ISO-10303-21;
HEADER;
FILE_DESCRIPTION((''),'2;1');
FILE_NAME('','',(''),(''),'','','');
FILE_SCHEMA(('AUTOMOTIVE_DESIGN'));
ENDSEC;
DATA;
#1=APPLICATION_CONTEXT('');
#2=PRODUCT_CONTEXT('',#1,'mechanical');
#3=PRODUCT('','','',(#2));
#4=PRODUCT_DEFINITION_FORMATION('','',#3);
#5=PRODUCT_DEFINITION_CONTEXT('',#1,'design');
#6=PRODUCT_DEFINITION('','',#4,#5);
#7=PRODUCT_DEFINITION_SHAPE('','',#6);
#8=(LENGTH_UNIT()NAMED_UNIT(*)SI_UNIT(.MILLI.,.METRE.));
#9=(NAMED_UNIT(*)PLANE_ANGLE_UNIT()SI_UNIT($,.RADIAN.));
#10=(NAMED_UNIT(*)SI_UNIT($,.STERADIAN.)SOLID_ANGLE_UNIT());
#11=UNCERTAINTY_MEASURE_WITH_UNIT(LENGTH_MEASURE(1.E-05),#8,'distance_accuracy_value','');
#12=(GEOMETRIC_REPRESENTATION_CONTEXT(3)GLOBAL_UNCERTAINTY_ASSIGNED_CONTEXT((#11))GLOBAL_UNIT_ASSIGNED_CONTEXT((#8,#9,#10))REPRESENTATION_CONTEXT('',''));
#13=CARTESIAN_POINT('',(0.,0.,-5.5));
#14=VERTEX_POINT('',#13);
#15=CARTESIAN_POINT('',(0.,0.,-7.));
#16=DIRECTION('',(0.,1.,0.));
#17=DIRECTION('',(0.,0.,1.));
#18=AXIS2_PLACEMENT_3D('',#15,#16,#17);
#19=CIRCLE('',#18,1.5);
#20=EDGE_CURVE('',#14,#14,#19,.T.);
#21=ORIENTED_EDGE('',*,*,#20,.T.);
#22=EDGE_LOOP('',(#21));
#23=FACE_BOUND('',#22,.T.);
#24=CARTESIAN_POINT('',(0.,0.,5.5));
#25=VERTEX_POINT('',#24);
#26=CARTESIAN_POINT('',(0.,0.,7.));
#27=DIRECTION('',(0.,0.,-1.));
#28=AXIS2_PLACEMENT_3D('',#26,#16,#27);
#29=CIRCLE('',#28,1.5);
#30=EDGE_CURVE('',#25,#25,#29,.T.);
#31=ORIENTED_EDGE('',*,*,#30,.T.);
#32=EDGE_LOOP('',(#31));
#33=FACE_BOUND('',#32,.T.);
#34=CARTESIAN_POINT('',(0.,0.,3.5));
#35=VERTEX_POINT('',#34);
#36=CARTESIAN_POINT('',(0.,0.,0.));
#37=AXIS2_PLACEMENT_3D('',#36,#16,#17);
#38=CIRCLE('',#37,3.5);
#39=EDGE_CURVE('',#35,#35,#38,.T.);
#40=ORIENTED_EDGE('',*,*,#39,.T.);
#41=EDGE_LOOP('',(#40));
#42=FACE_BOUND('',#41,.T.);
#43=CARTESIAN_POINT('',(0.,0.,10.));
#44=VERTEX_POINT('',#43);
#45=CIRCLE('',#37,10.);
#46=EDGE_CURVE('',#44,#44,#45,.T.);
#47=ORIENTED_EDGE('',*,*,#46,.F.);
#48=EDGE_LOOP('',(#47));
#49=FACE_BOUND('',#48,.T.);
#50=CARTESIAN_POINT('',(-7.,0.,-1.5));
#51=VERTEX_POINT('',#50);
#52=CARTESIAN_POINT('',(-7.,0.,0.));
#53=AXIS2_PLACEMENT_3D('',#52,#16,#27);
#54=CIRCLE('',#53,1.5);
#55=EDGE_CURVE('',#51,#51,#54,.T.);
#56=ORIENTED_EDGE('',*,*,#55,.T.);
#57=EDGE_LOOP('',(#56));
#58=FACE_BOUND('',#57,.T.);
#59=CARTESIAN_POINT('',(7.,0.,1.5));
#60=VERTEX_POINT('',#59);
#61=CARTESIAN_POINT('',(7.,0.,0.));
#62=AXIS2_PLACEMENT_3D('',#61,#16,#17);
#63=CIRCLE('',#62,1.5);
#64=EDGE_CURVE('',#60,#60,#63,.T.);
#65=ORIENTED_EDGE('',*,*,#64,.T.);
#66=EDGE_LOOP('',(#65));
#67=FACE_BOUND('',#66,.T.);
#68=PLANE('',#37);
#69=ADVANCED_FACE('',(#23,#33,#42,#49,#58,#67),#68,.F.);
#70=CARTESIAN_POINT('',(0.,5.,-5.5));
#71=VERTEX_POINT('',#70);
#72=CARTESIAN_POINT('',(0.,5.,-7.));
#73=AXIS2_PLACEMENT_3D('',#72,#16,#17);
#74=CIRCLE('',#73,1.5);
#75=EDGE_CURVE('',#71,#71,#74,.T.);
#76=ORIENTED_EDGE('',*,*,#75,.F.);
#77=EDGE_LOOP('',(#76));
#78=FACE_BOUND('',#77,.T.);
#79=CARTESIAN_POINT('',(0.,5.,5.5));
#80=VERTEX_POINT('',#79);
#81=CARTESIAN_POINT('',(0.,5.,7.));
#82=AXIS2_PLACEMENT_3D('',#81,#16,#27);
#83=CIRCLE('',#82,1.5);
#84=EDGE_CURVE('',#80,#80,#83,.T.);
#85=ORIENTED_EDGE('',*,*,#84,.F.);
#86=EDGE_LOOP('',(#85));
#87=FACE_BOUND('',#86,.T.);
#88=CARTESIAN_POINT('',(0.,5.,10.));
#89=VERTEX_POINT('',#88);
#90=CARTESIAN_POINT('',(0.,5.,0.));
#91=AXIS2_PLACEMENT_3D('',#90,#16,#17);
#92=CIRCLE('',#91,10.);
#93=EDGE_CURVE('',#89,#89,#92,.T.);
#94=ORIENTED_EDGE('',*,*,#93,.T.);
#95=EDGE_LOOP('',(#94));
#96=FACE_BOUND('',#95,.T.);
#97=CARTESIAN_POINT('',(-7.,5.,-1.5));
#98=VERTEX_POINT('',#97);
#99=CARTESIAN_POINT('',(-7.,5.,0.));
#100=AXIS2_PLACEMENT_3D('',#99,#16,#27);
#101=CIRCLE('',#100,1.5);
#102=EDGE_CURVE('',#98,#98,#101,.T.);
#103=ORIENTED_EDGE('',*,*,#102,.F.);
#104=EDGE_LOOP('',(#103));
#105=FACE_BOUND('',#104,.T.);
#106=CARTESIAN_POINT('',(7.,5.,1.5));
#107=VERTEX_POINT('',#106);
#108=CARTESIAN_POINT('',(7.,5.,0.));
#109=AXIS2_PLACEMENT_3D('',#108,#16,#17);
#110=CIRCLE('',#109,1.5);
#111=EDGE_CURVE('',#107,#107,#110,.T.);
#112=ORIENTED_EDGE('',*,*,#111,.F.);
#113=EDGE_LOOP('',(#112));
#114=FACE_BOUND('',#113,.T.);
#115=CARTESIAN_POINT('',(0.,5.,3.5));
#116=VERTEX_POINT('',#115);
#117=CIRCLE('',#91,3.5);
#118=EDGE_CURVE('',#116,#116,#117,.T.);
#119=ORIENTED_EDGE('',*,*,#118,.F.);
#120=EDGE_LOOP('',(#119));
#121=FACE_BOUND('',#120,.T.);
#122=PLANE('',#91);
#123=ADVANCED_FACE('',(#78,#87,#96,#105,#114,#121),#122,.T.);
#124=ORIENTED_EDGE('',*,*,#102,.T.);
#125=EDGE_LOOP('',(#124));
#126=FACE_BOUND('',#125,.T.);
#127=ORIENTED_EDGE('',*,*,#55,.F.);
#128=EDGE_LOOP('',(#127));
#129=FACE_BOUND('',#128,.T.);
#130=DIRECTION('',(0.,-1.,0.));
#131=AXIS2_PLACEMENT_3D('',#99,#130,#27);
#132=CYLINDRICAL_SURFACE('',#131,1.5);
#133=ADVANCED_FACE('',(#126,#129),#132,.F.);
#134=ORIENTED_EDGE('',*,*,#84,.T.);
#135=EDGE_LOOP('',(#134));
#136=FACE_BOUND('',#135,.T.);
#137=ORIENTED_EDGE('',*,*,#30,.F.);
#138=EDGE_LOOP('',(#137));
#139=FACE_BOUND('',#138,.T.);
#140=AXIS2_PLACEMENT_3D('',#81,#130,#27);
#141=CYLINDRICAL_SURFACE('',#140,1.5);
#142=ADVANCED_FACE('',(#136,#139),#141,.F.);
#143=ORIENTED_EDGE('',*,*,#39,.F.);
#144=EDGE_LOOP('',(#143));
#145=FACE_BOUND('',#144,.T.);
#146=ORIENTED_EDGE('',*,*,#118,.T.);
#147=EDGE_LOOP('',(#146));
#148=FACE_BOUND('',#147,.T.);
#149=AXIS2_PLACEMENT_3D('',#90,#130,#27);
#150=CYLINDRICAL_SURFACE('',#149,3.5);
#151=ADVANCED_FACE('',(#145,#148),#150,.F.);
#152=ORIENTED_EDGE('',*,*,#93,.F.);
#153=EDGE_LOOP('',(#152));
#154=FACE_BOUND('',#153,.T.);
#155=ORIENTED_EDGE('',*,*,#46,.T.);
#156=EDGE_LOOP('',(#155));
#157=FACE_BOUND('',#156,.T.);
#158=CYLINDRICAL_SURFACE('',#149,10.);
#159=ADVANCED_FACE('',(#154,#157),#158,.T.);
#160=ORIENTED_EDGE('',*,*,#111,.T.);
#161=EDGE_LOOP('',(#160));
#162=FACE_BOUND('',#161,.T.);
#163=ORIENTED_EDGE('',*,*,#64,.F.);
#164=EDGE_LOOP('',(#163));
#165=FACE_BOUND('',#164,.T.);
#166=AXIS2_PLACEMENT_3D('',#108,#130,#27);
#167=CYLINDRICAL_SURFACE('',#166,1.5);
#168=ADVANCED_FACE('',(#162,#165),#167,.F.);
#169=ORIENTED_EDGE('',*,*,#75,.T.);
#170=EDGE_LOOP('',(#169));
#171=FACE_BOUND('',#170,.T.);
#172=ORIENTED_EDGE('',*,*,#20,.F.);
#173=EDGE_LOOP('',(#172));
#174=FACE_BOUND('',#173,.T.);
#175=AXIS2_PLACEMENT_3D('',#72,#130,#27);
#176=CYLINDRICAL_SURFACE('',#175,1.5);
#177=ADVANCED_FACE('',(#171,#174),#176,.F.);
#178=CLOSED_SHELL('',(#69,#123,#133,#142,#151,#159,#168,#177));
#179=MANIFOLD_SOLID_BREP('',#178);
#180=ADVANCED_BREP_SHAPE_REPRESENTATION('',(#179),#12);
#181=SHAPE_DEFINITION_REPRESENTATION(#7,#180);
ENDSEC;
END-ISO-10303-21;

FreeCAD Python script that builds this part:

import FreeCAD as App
import Part
import Sketcher

V = App.Vector

doc = App.newDocument("Part")
body = doc.addObject("PartDesign::Body", "Body")

sketch1 = doc.addObject("Sketcher::SketchObject", "Sketch")
body.addObject(sketch1)
sketch1.AttachmentSupport = (doc.XZ_Plane, [""])
sketch1.MapMode = "FlatFace"
sketch1.addGeometry(Part.Circle(V(0, 0, 0), V(0, 0, 1), 10), False)
sketch1.addGeometry(Part.Circle(V(0, -7, 0), V(0, 0, 1), 1.5), False)
sketch1.addGeometry(Part.Circle(V(-7, 0, 0), V(0, 0, 1), 1.5), False)
sketch1.addGeometry(Part.Circle(V(7, 0, 0), V(0, 0, 1), 1.5), False)
sketch1.addGeometry(Part.Circle(V(0, 0, 0), V(0, 0, 1), 3.5), False)
sketch1.addGeometry(Part.Circle(V(0, 7, 0), V(0, 0, 1), 1.5), False)
sketch1.addConstraint(Sketcher.Constraint("Coincident", 0, 3, -1, 1))
sketch1.addConstraint(Sketcher.Constraint("Coincident", 4, 3, -1, 1))
sketch1.addConstraint(Sketcher.Constraint("Equal", 1, 2))
sketch1.addConstraint(Sketcher.Constraint("Equal", 2, 3))
sketch1.addConstraint(Sketcher.Constraint("Equal", 3, 5))
sketch1.addConstraint(Sketcher.Constraint("Symmetric", 2, 3, 3, 3, -1, 1))
sketch1.addConstraint(Sketcher.Constraint("Symmetric", 1, 3, 5, 3, -1, 1))
sketch1.addConstraint(Sketcher.Constraint("PointOnObject", 1, 3, -2))
sketch1.addConstraint(Sketcher.Constraint("PointOnObject", 2, 3, -1))
sketch1.addConstraint(Sketcher.Constraint("Diameter", 0, 20.0))
sketch1.addConstraint(Sketcher.Constraint("Diameter", 1, 3.0))
sketch1.addConstraint(Sketcher.Constraint("Diameter", 4, 7.0))
sketch1.addConstraint(Sketcher.Constraint("DistanceY", 1, 3, -1, 1, 7.0))
sketch1.addConstraint(Sketcher.Constraint("DistanceX", 2, 3, -1, 1, 7.0))
pad1 = doc.addObject("PartDesign::Pad", "Pad")
body.addObject(pad1)
pad1.Profile = sketch1
pad1.Length = 5
pad1.Reversed = True

doc.recompute()
